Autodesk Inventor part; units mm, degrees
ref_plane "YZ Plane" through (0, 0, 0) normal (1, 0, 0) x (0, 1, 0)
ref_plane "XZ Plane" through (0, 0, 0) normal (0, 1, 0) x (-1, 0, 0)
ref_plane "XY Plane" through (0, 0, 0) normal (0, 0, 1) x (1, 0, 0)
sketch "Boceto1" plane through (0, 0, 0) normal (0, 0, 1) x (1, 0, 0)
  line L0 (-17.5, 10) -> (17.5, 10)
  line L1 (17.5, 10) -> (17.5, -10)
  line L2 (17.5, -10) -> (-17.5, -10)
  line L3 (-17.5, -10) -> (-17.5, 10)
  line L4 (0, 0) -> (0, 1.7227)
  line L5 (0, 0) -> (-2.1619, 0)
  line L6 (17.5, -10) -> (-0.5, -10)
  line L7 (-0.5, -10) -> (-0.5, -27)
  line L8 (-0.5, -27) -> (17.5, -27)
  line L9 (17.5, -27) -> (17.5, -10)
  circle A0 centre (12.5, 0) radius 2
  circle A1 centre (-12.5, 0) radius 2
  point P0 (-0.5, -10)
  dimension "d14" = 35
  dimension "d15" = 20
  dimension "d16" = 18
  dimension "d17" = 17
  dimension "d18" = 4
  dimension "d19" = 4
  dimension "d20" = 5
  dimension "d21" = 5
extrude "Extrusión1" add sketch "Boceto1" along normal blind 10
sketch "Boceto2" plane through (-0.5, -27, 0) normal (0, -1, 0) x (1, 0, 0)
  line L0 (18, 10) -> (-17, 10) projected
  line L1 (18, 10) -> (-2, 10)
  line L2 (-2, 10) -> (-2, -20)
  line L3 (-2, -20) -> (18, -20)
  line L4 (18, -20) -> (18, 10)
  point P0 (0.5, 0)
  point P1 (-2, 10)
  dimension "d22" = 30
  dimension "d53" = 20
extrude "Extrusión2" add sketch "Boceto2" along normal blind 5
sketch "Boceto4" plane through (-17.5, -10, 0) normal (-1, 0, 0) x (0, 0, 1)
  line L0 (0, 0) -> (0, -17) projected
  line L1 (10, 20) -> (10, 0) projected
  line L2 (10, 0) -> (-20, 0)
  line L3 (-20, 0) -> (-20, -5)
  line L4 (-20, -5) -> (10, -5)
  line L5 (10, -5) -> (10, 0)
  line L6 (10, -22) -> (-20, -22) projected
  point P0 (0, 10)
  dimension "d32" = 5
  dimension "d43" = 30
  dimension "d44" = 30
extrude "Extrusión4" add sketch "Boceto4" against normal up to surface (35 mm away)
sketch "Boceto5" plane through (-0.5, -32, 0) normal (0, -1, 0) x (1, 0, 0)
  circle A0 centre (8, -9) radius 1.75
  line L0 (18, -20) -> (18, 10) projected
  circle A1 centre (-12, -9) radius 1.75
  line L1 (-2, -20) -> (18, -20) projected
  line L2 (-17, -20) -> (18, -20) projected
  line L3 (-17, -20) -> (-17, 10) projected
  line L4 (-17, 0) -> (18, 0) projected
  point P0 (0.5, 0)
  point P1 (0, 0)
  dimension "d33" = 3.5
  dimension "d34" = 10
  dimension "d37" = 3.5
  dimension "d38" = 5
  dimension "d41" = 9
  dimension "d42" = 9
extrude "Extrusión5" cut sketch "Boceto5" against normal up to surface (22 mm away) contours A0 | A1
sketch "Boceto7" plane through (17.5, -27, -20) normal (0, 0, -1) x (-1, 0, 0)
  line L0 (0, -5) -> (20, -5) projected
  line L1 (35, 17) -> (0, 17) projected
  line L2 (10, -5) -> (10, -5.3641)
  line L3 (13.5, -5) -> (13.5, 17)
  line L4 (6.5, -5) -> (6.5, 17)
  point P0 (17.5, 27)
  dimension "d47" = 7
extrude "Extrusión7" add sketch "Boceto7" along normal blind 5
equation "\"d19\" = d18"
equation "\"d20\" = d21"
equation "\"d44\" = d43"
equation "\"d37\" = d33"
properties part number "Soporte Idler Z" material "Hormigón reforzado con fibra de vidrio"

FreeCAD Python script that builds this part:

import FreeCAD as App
import Part
import Sketcher

V = App.Vector

doc = App.newDocument("Part")
body = doc.addObject("PartDesign::Body", "Body")

# Sketch on XY plane
sketch1 = body.newObject("Sketcher::SketchObject", "Sketch")
sketch1.AttachmentSupport = (doc.getObject("XY_Plane"), [""])
sketch1.MapMode = "FlatFace"
sketch1.addGeometry(Part.LineSegment(V(17.5, 10, 0), V(-17.5, 10, 0)), False)
sketch1.addGeometry(Part.LineSegment(V(-17.5, 10, 0), V(-17.5, -10, 0)), False)
sketch1.addGeometry(Part.LineSegment(V(-17.5, -10, 0), V(-0.5, -10, 0)), False)
sketch1.addGeometry(Part.LineSegment(V(-0.5, -10, 0), V(-0.5, -27, 0)), False)
sketch1.addGeometry(Part.LineSegment(V(-0.5, -27, 0), V(17.5, -27, 0)), False)
sketch1.addGeometry(Part.LineSegment(V(17.5, -27, 0), V(17.5, 10, 0)), False)
sketch1.addGeometry(Part.Circle(V(-12.5, 0, 0), V(0, 0, 1), 2), False)
sketch1.addGeometry(Part.Circle(V(12.5, 0, 0), V(0, 0, 1), 2), False)
sketch1.addConstraint(Sketcher.Constraint("Coincident", 0, 2, 1, 1))
sketch1.addConstraint(Sketcher.Constraint("Coincident", 1, 2, 2, 1))
sketch1.addConstraint(Sketcher.Constraint("Coincident", 2, 2, 3, 1))
sketch1.addConstraint(Sketcher.Constraint("Coincident", 3, 2, 4, 1))
sketch1.addConstraint(Sketcher.Constraint("Coincident", 4, 2, 5, 1))
sketch1.addConstraint(Sketcher.Constraint("Coincident", 5, 2, 0, 1))
sketch1.addConstraint(Sketcher.Constraint("Horizontal", 0))
sketch1.addConstraint(Sketcher.Constraint("Vertical", 1))
sketch1.addConstraint(Sketcher.Constraint("Horizontal", 2))
sketch1.addConstraint(Sketcher.Constraint("Vertical", 3))
sketch1.addConstraint(Sketcher.Constraint("Horizontal", 4))
sketch1.addConstraint(Sketcher.Constraint("Vertical", 5))
sketch1.addConstraint(Sketcher.Constraint("Equal", 6, 7))
sketch1.addConstraint(Sketcher.Constraint("Symmetric", 6, 3, 7, 3, -1, 1))
sketch1.addConstraint(Sketcher.Constraint("Symmetric", 1, 2, 5, 2, -1, 1))
sketch1.addConstraint(Sketcher.Constraint("PointOnObject", 6, 3, -1))
sketch1.addConstraint(Sketcher.Constraint("Equal", 2, 3))
sketch1.addConstraint(Sketcher.Constraint("Diameter", 6, 4.0))
sketch1.addConstraint(Sketcher.Constraint("DistanceX", 0, 2, 0, 1, 35.0))
sketch1.addConstraint(Sketcher.Constraint("DistanceX", 2, 1, 2, 2, 17.0))
sketch1.addConstraint(Sketcher.Constraint("DistanceY", 1, 2, 1, 1, 20.0))
sketch1.addConstraint(Sketcher.Constraint("DistanceX", 0, 2, 6, 3, 5.0))
pad1 = body.newObject("PartDesign::Pad", "Pad")
pad1.Profile = sketch1
pad1.Length = 10

# Sketch on XZ plane
sketch2 = body.newObject("Sketcher::SketchObject", "Sketch001")
sketch2.AttachmentSupport = (doc.getObject("XZ_Plane"), [""])
sketch2.MapMode = "FlatFace"
sketch2.AttachmentOffset = App.Placement(V(0, 0, 27), App.Rotation())
sketch2.addGeometry(Part.LineSegment(V(18, -20, 0), V(18, 10, 0)), False)
sketch2.addGeometry(Part.LineSegment(V(18, 10, 0), V(-2, 10, 0)), False)
sketch2.addGeometry(Part.LineSegment(V(-2, 10, 0), V(-2, -20, 0)), False)
sketch2.addGeometry(Part.LineSegment(V(-2, -20, 0), V(18, -20, 0)), False)
sketch2.addConstraint(Sketcher.Constraint("Coincident", 0, 2, 1, 1))
sketch2.addConstraint(Sketcher.Constraint("Coincident", 1, 2, 2, 1))
sketch2.addConstraint(Sketcher.Constraint("Coincident", 2, 2, 3, 1))
sketch2.addConstraint(Sketcher.Constraint("Coincident", 3, 2, 0, 1))
sketch2.addConstraint(Sketcher.Constraint("Vertical", 0))
sketch2.addConstraint(Sketcher.Constraint("Horizontal", 1))
sketch2.addConstraint(Sketcher.Constraint("Vertical", 2))
sketch2.addConstraint(Sketcher.Constraint("Horizontal", 3))
sketch2.addConstraint(Sketcher.Constraint("DistanceX", 1, 2, 1, 1, 20.0))
sketch2.addConstraint(Sketcher.Constraint("DistanceY", 0, 1, 0, 2, 30.0))
sketch2.addConstraint(Sketcher.Constraint("DistanceY", 2, 2, -1, 1, 20.0))
sketch2.addConstraint(Sketcher.Constraint("DistanceX", -1, 1, 0, 2, 17.5))
pad2 = body.newObject("PartDesign::Pad", "Pad001")
pad2.Profile = sketch2
pad2.Length = 5

# Sketch on YZ plane
sketch3 = body.newObject("Sketcher::SketchObject", "Sketch002")
sketch3.AttachmentSupport = (doc.getObject("YZ_Plane"), [""])
sketch3.MapMode = "FlatFace"
sketch3.AttachmentOffset = App.Placement(V(0, 0, -17.5), App.Rotation())
sketch3.addGeometry(Part.LineSegment(V(-10, 10, 0), V(-10, -20, 0)), False)
sketch3.addGeometry(Part.LineSegment(V(-10, -20, 0), V(-15, -20, 0)), False)
sketch3.addGeometry(Part.LineSegment(V(-15, -20, 0), V(-15, 10, 0)), False)
sketch3.addGeometry(Part.LineSegment(V(-15, 10, 0), V(-10, 10, 0)), False)
sketch3.addConstraint(Sketcher.Constraint("Coincident", 0, 2, 1, 1))
sketch3.addConstraint(Sketcher.Constraint("Coincident", 1, 2, 2, 1))
sketch3.addConstraint(Sketcher.Constraint("Coincident", 2, 2, 3, 1))
sketch3.addConstraint(Sketcher.Constraint("Coincident", 3, 2, 0, 1))
sketch3.addConstraint(Sketcher.Constraint("Vertical", 0))
sketch3.addConstraint(Sketcher.Constraint("Horizontal", 1))
sketch3.addConstraint(Sketcher.Constraint("Vertical", 2))
sketch3.addConstraint(Sketcher.Constraint("Horizontal", 3))
sketch3.addConstraint(Sketcher.Constraint("DistanceX", 1, 2, 1, 1, 5.0))
sketch3.addConstraint(Sketcher.Constraint("DistanceY", 0, 2, 0, 1, 30.0))
sketch3.addConstraint(Sketcher.Constraint("DistanceX", 0, 2, -1, 1, 10.0))
sketch3.addConstraint(Sketcher.Constraint("DistanceY", 0, 2, -1, 1, 20.0))
pad3 = body.newObject("PartDesign::Pad", "Pad002")
pad3.Profile = sketch3
pad3.Length = 35

# Sketch on XZ plane
sketch4 = body.newObject("Sketcher::SketchObject", "Sketch003")
sketch4.AttachmentSupport = (doc.getObject("XZ_Plane"), [""])
sketch4.MapMode = "FlatFace"
sketch4.AttachmentOffset = App.Placement(V(0, 0, 32), App.Rotation())
sketch4.addGeometry(Part.Circle(V(7.5, -9, 0), V(0, 0, 1), 1.8), False)
sketch4.addGeometry(Part.Circle(V(-12.5, -9, 0), V(0, 0, 1), 1.8), False)
sketch4.addConstraint(Sketcher.Constraint("Equal", 0, 1))
sketch4.addConstraint(Sketcher.Constraint("Horizontal", 0, 3, 1, 3))
sketch4.addConstraint(Sketcher.Constraint("Diameter", 0, 3.5))
sketch4.addConstraint(Sketcher.Constraint("DistanceY", 0, 3, -1, 1, 9.0))
sketch4.addConstraint(Sketcher.Constraint("DistanceX", 1, 3, 0, 3, 20.0))
sketch4.addConstraint(Sketcher.Constraint("DistanceX", -1, 1, 0, 3, 7.5))
pocket1 = body.newObject("PartDesign::Pocket", "Pocket")
pocket1.Profile = sketch4
pocket1.Length = 22

# Sketch on XY plane
sketch5 = body.newObject("Sketcher::SketchObject", "Sketch004")
sketch5.AttachmentSupport = (doc.getObject("XY_Plane"), [""])
sketch5.MapMode = "FlatFace"
sketch5.AttachmentOffset = App.Placement(V(0, 0, -20), App.Rotation())
sketch5.addGeometry(Part.LineSegment(V(11, -10, 0), V(11, -32, 0)), False)
sketch5.addGeometry(Part.LineSegment(V(11, -32, 0), V(4, -32, 0)), False)
sketch5.addGeometry(Part.LineSegment(V(4, -32, 0), V(4, -10, 0)), False)
sketch5.addGeometry(Part.LineSegment(V(4, -10, 0), V(11, -10, 0)), False)
sketch5.addConstraint(Sketcher.Constraint("Coincident", 0, 2, 1, 1))
sketch5.addConstraint(Sketcher.Constraint("Coincident", 1, 2, 2, 1))
sketch5.addConstraint(Sketcher.Constraint("Coincident", 2, 2, 3, 1))
sketch5.addConstraint(Sketcher.Constraint("Coincident", 3, 2, 0, 1))
sketch5.addConstraint(Sketcher.Constraint("Vertical", 0))
sketch5.addConstraint(Sketcher.Constraint("Horizontal", 1))
sketch5.addConstraint(Sketcher.Constraint("Vertical", 2))
sketch5.addConstraint(Sketcher.Constraint("Horizontal", 3))
sketch5.addConstraint(Sketcher.Constraint("DistanceX", 1, 2, 1, 1, 7.0))
sketch5.addConstraint(Sketcher.Constraint("DistanceY", 0, 2, 0, 1, 22.0))
sketch5.addConstraint(Sketcher.Constraint("DistanceX", -1, 1, 0, 2, 11.0))
sketch5.addConstraint(Sketcher.Constraint("DistanceY", 0, 2, -1, 1, 32.0))
pad4 = body.newObject("PartDesign::Pad", "Pad003")
pad4.Profile = sketch5
pad4.Length = 5
pad4.Reversed = True

doc.recompute()
